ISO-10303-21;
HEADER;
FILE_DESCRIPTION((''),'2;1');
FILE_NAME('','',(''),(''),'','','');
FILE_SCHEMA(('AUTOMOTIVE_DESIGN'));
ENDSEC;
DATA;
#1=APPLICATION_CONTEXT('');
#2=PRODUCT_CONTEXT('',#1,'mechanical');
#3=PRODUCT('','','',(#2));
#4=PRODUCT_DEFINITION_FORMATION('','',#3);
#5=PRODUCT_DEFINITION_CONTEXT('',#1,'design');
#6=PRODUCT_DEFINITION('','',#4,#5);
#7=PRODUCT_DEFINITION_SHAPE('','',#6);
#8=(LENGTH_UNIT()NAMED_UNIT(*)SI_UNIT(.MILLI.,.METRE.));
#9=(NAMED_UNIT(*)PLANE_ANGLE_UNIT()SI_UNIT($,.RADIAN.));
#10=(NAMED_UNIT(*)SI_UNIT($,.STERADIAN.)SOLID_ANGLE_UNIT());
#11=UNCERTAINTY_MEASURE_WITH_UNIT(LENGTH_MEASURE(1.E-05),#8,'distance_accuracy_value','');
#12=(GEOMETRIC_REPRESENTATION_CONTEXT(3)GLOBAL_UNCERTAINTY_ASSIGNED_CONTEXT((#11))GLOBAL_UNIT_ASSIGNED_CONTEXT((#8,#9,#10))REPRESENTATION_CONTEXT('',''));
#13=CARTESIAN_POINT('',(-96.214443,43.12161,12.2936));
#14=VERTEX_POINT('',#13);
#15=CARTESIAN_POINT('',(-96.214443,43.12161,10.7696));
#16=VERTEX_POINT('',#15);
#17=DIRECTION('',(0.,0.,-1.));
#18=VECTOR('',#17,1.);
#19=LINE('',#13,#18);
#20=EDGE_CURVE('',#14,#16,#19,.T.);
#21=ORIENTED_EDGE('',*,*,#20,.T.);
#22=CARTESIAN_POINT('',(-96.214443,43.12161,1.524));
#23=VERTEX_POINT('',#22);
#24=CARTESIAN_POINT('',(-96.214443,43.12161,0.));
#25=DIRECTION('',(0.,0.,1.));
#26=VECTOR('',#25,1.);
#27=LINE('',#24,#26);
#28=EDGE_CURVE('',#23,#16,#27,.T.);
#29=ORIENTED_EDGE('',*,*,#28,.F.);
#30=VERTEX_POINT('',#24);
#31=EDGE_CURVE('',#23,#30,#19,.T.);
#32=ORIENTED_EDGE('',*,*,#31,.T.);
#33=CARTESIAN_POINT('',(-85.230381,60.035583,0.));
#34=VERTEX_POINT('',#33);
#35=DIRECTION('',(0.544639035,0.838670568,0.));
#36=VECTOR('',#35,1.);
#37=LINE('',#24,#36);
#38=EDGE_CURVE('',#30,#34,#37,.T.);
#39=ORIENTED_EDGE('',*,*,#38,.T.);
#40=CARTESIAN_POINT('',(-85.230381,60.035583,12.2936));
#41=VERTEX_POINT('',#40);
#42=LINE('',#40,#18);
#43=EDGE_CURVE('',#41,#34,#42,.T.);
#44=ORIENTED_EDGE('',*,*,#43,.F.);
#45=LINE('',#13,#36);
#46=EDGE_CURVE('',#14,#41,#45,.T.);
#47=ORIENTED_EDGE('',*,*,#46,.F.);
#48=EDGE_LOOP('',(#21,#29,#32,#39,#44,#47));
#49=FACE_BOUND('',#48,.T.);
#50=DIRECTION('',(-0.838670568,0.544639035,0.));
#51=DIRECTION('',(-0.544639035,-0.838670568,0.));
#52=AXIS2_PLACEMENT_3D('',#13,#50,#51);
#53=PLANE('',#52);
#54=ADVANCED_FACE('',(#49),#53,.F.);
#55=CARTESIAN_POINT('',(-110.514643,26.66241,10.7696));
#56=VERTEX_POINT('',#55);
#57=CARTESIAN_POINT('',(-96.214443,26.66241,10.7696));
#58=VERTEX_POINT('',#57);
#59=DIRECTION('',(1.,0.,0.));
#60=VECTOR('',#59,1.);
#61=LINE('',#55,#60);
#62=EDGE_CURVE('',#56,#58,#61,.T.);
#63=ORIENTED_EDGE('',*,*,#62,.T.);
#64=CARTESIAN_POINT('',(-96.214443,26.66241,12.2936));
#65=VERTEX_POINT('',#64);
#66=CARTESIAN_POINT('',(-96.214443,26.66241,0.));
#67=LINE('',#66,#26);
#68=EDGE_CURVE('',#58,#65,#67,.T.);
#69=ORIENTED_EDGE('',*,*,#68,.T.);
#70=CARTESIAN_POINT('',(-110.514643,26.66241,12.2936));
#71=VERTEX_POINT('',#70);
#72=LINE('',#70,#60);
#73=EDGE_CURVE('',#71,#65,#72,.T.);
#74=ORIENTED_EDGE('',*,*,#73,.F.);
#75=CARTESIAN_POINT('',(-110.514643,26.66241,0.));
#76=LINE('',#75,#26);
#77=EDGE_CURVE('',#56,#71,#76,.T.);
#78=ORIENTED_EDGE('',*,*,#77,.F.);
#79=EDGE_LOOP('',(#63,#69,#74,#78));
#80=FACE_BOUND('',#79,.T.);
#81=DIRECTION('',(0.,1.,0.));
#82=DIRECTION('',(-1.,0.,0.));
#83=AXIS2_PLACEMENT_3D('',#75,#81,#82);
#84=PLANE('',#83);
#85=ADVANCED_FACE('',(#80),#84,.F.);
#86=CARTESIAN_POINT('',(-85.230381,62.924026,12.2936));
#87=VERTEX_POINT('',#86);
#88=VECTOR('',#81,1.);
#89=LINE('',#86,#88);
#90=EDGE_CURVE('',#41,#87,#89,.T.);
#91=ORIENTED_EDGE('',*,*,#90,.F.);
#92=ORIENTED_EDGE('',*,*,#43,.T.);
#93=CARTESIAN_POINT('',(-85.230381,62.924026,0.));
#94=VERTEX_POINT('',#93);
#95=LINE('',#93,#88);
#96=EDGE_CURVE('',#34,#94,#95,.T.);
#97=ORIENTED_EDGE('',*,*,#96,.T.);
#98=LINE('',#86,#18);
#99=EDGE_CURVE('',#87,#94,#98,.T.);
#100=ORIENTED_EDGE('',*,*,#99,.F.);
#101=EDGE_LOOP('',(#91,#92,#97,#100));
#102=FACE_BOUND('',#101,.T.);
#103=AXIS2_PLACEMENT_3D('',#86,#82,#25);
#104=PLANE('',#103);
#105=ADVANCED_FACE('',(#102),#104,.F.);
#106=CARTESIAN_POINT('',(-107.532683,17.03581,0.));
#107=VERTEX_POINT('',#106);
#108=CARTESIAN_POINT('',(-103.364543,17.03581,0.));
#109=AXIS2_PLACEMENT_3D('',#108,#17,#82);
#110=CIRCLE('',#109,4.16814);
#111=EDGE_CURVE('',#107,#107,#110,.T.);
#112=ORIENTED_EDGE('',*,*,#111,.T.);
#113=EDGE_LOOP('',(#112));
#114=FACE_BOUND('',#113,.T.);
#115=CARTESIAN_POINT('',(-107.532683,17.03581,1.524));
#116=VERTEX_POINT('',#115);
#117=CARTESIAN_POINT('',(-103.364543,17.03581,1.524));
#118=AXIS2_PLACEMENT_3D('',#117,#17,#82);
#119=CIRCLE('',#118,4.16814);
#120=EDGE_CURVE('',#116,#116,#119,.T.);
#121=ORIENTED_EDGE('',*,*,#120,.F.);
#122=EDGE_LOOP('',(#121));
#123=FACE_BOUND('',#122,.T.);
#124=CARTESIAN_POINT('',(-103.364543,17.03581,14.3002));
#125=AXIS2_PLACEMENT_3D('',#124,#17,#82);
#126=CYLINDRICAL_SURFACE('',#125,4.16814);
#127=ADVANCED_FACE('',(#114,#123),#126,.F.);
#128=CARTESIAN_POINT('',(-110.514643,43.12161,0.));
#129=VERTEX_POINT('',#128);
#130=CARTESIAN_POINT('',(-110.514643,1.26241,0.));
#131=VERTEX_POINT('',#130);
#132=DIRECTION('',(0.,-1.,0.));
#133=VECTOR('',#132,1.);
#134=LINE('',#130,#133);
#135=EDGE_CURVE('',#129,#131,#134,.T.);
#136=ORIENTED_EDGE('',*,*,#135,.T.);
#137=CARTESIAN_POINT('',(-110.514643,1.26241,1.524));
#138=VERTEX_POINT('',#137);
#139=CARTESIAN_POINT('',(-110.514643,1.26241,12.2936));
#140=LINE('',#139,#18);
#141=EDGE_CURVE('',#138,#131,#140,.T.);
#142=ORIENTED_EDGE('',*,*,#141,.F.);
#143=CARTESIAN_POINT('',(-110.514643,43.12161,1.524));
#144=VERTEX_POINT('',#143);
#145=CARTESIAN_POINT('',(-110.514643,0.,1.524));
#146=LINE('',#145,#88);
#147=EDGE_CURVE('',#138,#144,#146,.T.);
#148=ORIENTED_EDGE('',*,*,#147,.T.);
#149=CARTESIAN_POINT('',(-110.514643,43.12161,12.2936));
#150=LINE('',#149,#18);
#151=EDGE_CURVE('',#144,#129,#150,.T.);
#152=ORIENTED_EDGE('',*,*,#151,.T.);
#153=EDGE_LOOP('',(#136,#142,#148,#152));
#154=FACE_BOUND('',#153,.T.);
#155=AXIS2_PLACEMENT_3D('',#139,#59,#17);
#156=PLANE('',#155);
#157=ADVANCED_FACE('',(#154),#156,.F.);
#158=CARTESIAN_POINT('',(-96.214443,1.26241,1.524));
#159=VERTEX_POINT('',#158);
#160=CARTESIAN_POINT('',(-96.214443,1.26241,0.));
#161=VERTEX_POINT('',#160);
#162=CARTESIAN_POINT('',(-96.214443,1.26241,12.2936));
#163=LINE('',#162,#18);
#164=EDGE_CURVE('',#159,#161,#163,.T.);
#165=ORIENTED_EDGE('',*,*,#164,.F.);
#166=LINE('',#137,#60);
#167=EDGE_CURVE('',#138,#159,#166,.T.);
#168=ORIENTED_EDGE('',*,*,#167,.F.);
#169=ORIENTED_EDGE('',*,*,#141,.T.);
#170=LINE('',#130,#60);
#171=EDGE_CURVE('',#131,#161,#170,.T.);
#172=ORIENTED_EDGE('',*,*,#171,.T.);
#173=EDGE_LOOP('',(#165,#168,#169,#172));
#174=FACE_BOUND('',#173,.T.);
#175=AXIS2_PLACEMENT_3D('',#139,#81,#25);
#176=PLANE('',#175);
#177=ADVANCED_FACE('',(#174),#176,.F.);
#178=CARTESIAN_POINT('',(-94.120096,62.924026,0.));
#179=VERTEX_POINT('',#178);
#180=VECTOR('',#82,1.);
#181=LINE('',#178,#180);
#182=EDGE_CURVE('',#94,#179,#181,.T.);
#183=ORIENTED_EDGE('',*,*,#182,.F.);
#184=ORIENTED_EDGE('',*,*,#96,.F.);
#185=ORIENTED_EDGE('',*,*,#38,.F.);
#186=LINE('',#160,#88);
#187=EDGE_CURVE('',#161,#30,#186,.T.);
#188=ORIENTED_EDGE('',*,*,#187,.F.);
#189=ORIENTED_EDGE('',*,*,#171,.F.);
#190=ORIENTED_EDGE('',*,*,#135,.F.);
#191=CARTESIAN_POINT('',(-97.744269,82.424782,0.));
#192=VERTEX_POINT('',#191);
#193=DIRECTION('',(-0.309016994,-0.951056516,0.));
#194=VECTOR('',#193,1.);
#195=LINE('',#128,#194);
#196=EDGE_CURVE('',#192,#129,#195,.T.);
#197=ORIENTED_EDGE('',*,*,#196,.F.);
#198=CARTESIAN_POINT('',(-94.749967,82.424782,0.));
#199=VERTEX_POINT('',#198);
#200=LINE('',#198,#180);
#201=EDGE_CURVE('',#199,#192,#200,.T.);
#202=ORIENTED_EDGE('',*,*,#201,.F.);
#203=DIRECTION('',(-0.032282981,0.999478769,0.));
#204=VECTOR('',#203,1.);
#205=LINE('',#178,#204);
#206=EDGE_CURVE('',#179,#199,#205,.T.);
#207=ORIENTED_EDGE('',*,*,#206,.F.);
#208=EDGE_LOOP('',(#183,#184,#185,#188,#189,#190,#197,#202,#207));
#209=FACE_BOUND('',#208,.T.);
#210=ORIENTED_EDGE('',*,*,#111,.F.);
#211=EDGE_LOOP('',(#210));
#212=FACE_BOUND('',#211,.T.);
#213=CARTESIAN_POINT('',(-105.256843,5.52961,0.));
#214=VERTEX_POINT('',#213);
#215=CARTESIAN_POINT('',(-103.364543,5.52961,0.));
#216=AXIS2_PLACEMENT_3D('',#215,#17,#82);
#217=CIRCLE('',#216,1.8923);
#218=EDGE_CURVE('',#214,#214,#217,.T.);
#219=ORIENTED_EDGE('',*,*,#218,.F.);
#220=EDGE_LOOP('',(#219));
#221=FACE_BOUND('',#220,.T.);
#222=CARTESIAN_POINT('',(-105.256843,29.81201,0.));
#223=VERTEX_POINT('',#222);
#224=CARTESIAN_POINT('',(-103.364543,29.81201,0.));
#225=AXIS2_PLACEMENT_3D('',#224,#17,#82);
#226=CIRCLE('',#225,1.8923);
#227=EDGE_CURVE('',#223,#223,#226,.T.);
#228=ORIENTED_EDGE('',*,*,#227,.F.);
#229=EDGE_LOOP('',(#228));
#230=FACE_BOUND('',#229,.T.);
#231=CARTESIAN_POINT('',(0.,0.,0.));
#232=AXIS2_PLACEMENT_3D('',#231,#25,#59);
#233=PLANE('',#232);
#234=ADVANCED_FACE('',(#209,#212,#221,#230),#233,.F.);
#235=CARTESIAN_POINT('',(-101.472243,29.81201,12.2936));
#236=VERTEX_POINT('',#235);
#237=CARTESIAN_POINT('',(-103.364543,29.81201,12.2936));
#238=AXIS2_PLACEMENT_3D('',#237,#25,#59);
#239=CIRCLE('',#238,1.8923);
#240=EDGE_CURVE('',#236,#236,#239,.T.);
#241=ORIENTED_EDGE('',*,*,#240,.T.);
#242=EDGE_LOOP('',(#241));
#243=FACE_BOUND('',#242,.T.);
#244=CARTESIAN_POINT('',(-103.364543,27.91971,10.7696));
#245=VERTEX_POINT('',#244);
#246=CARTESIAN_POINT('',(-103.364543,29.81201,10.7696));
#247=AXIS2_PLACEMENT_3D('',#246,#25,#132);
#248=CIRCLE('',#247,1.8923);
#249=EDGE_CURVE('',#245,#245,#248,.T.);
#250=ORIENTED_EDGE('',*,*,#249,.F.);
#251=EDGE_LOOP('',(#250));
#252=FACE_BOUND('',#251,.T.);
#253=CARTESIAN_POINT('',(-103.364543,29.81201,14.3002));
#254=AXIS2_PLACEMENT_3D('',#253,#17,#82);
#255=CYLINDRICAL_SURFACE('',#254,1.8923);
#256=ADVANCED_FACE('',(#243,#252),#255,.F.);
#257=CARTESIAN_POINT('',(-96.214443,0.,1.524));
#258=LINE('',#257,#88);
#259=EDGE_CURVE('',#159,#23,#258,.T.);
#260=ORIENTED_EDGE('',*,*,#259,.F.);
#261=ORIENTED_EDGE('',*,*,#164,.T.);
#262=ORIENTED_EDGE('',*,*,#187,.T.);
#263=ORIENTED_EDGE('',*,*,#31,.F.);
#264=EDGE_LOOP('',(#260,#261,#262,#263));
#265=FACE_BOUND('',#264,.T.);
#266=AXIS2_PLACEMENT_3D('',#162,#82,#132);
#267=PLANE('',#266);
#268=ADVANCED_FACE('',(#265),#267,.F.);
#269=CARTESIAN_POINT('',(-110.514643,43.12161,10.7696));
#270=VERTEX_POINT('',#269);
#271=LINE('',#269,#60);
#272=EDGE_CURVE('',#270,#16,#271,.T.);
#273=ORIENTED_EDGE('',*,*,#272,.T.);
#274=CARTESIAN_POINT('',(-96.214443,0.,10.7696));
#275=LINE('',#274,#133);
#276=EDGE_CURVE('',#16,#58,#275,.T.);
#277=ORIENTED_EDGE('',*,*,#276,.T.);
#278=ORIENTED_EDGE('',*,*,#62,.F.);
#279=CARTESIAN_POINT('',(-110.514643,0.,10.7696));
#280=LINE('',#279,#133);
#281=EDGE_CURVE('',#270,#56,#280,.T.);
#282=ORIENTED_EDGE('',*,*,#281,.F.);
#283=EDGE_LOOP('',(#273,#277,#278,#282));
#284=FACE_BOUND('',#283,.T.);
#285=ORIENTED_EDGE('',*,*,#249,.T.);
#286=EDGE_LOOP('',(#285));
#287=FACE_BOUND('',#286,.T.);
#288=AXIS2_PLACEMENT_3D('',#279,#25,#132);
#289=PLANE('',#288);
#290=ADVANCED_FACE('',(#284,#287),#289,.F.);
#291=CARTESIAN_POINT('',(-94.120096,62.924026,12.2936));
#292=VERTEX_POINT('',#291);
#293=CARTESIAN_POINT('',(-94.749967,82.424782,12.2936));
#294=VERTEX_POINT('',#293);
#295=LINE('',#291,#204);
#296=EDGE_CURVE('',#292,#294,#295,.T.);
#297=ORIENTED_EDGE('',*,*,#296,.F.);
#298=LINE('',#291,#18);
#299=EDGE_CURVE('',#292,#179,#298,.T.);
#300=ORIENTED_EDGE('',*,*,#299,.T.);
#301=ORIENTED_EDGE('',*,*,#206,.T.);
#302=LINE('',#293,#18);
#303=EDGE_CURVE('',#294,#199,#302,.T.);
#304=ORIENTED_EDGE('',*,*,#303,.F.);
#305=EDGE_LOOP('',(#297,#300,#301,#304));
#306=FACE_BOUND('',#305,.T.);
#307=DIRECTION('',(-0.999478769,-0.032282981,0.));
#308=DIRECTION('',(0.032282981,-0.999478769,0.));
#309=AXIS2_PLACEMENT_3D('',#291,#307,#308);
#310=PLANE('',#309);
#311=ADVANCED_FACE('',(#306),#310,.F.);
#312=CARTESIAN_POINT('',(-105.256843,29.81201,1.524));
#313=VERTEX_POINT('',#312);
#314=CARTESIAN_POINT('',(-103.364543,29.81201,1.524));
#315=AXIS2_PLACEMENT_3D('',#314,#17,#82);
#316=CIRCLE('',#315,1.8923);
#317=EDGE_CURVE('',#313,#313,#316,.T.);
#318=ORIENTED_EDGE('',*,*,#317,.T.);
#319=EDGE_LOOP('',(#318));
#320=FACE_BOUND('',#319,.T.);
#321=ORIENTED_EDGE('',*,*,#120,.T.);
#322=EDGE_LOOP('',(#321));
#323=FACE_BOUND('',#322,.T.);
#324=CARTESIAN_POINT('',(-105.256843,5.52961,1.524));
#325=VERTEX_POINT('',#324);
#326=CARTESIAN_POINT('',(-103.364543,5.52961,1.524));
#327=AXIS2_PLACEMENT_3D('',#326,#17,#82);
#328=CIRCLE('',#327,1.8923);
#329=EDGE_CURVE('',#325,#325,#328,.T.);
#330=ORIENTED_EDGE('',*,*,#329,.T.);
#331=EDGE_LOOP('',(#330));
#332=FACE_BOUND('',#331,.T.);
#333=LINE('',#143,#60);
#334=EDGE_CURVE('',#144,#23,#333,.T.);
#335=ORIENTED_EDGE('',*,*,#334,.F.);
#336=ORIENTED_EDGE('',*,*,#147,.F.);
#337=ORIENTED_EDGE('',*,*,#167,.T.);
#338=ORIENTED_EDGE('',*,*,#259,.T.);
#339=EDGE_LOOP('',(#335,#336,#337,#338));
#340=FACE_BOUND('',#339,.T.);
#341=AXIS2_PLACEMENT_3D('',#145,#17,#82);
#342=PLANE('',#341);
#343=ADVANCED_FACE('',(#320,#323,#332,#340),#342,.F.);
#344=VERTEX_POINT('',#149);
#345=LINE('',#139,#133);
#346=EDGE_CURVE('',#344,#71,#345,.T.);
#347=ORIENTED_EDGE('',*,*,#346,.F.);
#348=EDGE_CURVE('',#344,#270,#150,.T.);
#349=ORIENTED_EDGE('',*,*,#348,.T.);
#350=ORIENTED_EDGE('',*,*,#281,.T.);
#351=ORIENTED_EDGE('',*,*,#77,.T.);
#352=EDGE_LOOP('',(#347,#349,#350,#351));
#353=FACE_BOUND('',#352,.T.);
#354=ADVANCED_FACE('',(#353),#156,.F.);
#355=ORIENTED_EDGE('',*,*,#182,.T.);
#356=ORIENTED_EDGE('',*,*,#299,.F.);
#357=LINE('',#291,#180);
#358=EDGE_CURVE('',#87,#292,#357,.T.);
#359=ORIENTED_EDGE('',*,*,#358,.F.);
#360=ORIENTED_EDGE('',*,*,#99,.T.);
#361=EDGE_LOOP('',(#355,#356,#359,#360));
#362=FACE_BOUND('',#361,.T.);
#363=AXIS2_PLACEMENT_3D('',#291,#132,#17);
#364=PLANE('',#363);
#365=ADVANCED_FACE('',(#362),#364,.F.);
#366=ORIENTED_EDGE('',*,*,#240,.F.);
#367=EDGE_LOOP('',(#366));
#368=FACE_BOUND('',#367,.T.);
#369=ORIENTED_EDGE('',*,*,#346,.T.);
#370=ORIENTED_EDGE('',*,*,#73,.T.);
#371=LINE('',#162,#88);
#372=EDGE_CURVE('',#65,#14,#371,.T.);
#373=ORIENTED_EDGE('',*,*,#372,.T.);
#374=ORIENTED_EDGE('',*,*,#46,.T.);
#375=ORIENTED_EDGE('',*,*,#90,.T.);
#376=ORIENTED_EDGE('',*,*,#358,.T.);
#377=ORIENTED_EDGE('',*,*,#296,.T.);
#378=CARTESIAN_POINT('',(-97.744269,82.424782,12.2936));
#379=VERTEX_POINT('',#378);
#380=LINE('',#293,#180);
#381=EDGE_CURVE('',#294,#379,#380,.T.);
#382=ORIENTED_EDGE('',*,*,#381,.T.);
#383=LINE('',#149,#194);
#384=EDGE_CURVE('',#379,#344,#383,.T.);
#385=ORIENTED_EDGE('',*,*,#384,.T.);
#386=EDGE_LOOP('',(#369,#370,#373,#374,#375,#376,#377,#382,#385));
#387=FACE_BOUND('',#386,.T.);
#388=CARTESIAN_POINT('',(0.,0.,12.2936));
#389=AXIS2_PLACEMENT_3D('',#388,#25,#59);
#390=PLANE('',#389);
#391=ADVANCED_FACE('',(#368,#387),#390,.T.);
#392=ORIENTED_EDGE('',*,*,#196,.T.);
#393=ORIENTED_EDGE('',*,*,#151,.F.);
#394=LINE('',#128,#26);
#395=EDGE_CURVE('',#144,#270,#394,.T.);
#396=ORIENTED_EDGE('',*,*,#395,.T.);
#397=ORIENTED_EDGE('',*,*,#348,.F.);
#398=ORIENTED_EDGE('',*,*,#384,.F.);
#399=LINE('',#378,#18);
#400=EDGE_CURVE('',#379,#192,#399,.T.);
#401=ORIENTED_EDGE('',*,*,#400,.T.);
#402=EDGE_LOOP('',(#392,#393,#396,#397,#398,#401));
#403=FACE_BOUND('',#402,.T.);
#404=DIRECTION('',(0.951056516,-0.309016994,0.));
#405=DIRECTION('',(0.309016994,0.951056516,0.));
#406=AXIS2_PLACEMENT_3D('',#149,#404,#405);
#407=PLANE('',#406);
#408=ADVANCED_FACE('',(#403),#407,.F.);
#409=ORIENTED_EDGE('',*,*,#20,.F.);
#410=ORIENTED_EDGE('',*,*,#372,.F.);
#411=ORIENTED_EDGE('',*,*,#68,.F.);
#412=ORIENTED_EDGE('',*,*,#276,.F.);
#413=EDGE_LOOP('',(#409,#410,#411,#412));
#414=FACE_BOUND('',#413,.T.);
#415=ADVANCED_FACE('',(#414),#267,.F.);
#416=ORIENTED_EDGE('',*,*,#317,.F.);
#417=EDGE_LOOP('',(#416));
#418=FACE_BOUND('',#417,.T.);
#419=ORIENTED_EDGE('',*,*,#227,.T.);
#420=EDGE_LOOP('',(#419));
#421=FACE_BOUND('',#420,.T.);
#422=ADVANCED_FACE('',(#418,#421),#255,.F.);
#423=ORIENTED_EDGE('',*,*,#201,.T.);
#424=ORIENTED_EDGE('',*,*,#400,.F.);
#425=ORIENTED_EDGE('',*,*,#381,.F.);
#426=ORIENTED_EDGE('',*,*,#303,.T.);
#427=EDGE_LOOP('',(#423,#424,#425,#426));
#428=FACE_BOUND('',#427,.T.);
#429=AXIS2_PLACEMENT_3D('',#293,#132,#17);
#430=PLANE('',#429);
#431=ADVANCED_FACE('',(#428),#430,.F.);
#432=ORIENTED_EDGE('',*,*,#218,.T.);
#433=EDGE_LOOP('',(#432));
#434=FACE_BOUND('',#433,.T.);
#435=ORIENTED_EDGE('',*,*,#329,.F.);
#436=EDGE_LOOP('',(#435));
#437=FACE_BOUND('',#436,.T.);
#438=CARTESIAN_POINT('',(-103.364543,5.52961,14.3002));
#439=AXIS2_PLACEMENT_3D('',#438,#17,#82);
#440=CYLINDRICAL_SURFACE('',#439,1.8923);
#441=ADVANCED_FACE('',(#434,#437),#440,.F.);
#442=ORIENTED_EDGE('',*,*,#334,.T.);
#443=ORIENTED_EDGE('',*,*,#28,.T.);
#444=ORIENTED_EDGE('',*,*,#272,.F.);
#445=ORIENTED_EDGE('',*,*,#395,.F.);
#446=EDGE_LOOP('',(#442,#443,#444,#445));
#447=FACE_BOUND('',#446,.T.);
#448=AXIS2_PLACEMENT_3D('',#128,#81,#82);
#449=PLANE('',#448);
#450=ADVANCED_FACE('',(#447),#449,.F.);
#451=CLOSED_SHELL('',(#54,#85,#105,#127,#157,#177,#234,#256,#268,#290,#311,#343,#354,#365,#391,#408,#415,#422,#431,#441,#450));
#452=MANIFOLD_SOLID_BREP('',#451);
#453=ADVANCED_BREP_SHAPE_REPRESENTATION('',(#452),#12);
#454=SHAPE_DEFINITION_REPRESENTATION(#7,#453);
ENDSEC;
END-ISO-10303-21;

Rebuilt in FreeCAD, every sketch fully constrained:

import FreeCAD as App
import Part
import Sketcher
Q = App.Units.Quantity


def add_polygon(sketch, points):
    """Adds a closed chain of lines whose ends are joined by coincident constraints."""
    first, n = sketch.GeometryCount, len(points)
    for a, b in zip(points, points[1:] + points[:1]):
        sketch.addGeometry(Part.LineSegment(App.Vector(*a, 0), App.Vector(*b, 0)), False)
    for i in range(n):
        sketch.addConstraint(Sketcher.Constraint("Coincident", first + i, 2, first + (i + 1) % n, 1))

doc = App.newDocument("Part")
body = doc.addObject("PartDesign::Body", "Body")

sketch1 = body.newObject("Sketcher::SketchObject", "Sketch")
sketch1.AttachmentSupport = (doc.getObject("XY_Plane"), [""])
sketch1.MapMode = "FlatFace"
add_polygon(sketch1, [(-110.514643, 1.26241), (-96.214443, 1.26241), (-96.214443, 43.12161), (-85.230381, 60.035583), (-85.230381, 62.924026), (-94.120096, 62.924026), (-94.749967, 82.424782), (-97.744269, 82.424782), (-110.514643, 43.12161)])
sketch1.addConstraint([
    Sketcher.Constraint("Horizontal", 0),
    Sketcher.Constraint("Vertical", 1),
    Sketcher.Constraint("Vertical", 3),
    Sketcher.Constraint("Horizontal", 4),
    Sketcher.Constraint("Horizontal", 6),
    Sketcher.Constraint("Vertical", 8),
    Sketcher.Constraint("Horizontal", 1, 2, 7, 2),
    Sketcher.Constraint("Angle", 2, Q("57 deg")),
    Sketcher.Constraint("Angle", 7, Q("-108 deg")),
    Sketcher.Constraint("DistanceX", 0, 1, 0, 2, Q("0.563 in")),
    Sketcher.Constraint("DistanceY", 1, 1, 1, 2, Q("1.648 in")),
    Sketcher.Constraint("Angle", 5, Q("91.85 deg")),
    Sketcher.Constraint("Distance", 2, Q("0.794 in")),
    Sketcher.Constraint("Distance", 7, Q("1.627 in")),
    Sketcher.Constraint("DistanceX", 6, 2, 6, 1, Q("2.994301 mm")),
    Sketcher.Constraint("DistanceX", 4, 2, 4, 1, Q("8.889715 mm")),
    Sketcher.Constraint("DistanceY", -1, 1, 0, 2, Q("1.26241 mm")),
    Sketcher.Constraint("DistanceX", 2, 2, -1, 1, Q("85.230381 mm")),
])
pad1 = body.newObject("PartDesign::Pad", "Pad")
pad1.Profile = sketch1
pad1.Length = Q("0.484 in")

sketch2 = body.newObject("Sketcher::SketchObject", "Sketch001")
sketch2.AttachmentSupport = (doc.getObject("YZ_Plane"), [""])
sketch2.MapMode = "FlatFace"
sketch2.AttachmentOffset = App.Placement(App.Vector(0, 0, -96.214443), App.Rotation())
add_polygon(sketch2, [(26.7, 12.3), (1.3, 12.3), (1.3, 1.5), (43.1, 1.5), (43.1, 10.8), (26.7, 10.8)])
sketch2.addConstraint([
    Sketcher.Constraint("Horizontal", 0),
    Sketcher.Constraint("Vertical", 1),
    Sketcher.Constraint("Horizontal", 2),
    Sketcher.Constraint("Vertical", 3),
    Sketcher.Constraint("Horizontal", 4),
    Sketcher.Constraint("Vertical", 5),
    Sketcher.Constraint("DistanceX", 0, 2, 0, 1, Q("1 in")),
    Sketcher.Constraint("DistanceY", 5, 1, 5, 2, Q("0.06 in")),
    Sketcher.Constraint("DistanceX", 2, 1, 2, 2, Q("1.648 in")),
    Sketcher.Constraint("DistanceY", 1, 2, 1, 1, Q("0.424 in")),
    Sketcher.Constraint("DistanceY", -1, 1, 1, 2, Q("0.06 in")),
    Sketcher.Constraint("DistanceX", -1, 1, 0, 2, Q("1.26241 mm")),
])
pocket1 = body.newObject("PartDesign::Pocket", "Pocket")
pocket1.Profile = sketch2
pocket1.Length = Q("0.563 in")

sketch3 = body.newObject("Sketcher::SketchObject", "Sketch002")
sketch3.AttachmentSupport = (doc.getObject("XY_Plane"), [""])
sketch3.MapMode = "FlatFace"
sketch3.addGeometry([
    Part.Circle(App.Vector(-103.4, 5.5, 0), App.Vector(0, 0, 1), 1.9),
    Part.Circle(App.Vector(-103.4, 29.8, 0), App.Vector(0, 0, 1), 1.9),
    Part.Circle(App.Vector(-103.4, 17, 0), App.Vector(0, 0, 1), 4.2),
], False)
sketch3.addConstraint([
    Sketcher.Constraint("Equal", 0, 1),
    Sketcher.Constraint("Vertical", 0, 3, 1, 3),
    Sketcher.Constraint("Vertical", 1, 3, 2, 3),
    Sketcher.Constraint("Diameter", 0, Q("0.149 in")),
    Sketcher.Constraint("Diameter", 2, Q("0.3282 in")),
    Sketcher.Constraint("DistanceY", 0, 3, 1, 3, Q("0.956 in")),
    Sketcher.Constraint("DistanceY", 0, 3, 2, 3, Q("0.453 in")),
    Sketcher.Constraint("DistanceY", -1, 1, 0, 3, Q("5.52961 mm")),
    Sketcher.Constraint("DistanceX", 0, 3, -1, 1, Q("103.364543 mm")),
])
pocket2 = body.newObject("PartDesign::Pocket", "Pocket001")
pocket2.Profile = sketch3
pocket2.Length = Q("0.563 in")
pocket2.Reversed = True

doc.recompute()
